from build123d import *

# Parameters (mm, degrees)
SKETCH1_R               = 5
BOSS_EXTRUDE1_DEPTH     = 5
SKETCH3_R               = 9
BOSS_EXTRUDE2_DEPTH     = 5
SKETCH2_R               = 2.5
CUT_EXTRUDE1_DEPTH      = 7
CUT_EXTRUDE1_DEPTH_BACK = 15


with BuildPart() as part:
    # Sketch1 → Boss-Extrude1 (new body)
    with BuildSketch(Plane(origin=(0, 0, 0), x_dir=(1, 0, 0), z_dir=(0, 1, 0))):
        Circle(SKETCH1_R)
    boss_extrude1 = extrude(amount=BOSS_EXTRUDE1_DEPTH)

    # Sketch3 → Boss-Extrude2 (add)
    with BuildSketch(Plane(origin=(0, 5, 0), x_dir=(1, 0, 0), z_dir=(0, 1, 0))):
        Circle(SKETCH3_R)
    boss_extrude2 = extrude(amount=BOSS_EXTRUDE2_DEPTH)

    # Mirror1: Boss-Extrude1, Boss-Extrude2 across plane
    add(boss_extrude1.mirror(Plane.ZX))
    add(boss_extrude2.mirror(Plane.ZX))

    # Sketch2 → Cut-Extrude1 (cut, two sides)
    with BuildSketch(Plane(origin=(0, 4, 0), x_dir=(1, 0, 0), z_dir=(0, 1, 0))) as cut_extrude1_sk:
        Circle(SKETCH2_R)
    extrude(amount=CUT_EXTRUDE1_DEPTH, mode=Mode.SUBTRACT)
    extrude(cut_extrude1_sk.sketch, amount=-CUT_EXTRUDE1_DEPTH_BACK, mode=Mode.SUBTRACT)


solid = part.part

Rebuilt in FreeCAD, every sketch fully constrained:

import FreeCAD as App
import Part
import Sketcher
from FreeCAD import Vector

doc = App.newDocument("Part")
body = doc.addObject("PartDesign::Body", "Body")

sketch1 = body.newObject("Sketcher::SketchObject", "Sketch")
sketch1.AttachmentSupport = (doc.getObject("XZ_Plane"), [""])
sketch1.MapMode = "FlatFace"
sketch1.addGeometry(Part.Circle(Vector(0, 0, 0), Vector(0, 0, 1), 5), False)
sketch1.addConstraint([
    Sketcher.Constraint("Coincident", 0, 3, -1, 1),
    Sketcher.Constraint("Diameter", 0, 10.0),
])
pad1 = body.newObject("PartDesign::Pad", "Pad")
pad1.Profile = sketch1
pad1.Length = 5
pad1.Reversed = True

sketch2 = body.newObject("Sketcher::SketchObject", "Sketch001")
sketch2.AttachmentSupport = (doc.getObject("XZ_Plane"), [""])
sketch2.MapMode = "FlatFace"
sketch2.AttachmentOffset = App.Placement(Vector(0, 0, -5), App.Rotation())
sketch2.addGeometry(Part.Circle(Vector(0, 0, 0), Vector(0, 0, 1), 9), False)
sketch2.addConstraint([
    Sketcher.Constraint("Coincident", 0, 3, -1, 1),
    Sketcher.Constraint("Diameter", 0, 18.0),
])
pad2 = body.newObject("PartDesign::Pad", "Pad001")
pad2.Profile = sketch2
pad2.Length = 5
pad2.Reversed = True
doc.recompute()

mirrored = body.newObject("PartDesign::Mirrored", "Mirrored")
mirrored.Originals = [pad1, pad2]
mirrored.MirrorPlane = (doc.getObject("XZ_Plane"), [""])
body.Tip = mirrored

sketch3 = body.newObject("Sketcher::SketchObject", "Sketch002")
sketch3.AttachmentSupport = (doc.getObject("XZ_Plane"), [""])
sketch3.MapMode = "FlatFace"
sketch3.AttachmentOffset = App.Placement(Vector(0, 0, -4), App.Rotation())
sketch3.addGeometry(Part.Circle(Vector(0, 0, 0), Vector(0, 0, 1), 2.5), False)
sketch3.addConstraint([
    Sketcher.Constraint("Coincident", 0, 3, -1, 1),
    Sketcher.Constraint("Diameter", 0, 5.0),
])
pocket1 = body.newObject("PartDesign::Pocket", "Pocket")
pocket1.Profile = sketch3
pocket1.Type = "ThroughAll"
pocket1.Midplane = True

doc.recompute()
